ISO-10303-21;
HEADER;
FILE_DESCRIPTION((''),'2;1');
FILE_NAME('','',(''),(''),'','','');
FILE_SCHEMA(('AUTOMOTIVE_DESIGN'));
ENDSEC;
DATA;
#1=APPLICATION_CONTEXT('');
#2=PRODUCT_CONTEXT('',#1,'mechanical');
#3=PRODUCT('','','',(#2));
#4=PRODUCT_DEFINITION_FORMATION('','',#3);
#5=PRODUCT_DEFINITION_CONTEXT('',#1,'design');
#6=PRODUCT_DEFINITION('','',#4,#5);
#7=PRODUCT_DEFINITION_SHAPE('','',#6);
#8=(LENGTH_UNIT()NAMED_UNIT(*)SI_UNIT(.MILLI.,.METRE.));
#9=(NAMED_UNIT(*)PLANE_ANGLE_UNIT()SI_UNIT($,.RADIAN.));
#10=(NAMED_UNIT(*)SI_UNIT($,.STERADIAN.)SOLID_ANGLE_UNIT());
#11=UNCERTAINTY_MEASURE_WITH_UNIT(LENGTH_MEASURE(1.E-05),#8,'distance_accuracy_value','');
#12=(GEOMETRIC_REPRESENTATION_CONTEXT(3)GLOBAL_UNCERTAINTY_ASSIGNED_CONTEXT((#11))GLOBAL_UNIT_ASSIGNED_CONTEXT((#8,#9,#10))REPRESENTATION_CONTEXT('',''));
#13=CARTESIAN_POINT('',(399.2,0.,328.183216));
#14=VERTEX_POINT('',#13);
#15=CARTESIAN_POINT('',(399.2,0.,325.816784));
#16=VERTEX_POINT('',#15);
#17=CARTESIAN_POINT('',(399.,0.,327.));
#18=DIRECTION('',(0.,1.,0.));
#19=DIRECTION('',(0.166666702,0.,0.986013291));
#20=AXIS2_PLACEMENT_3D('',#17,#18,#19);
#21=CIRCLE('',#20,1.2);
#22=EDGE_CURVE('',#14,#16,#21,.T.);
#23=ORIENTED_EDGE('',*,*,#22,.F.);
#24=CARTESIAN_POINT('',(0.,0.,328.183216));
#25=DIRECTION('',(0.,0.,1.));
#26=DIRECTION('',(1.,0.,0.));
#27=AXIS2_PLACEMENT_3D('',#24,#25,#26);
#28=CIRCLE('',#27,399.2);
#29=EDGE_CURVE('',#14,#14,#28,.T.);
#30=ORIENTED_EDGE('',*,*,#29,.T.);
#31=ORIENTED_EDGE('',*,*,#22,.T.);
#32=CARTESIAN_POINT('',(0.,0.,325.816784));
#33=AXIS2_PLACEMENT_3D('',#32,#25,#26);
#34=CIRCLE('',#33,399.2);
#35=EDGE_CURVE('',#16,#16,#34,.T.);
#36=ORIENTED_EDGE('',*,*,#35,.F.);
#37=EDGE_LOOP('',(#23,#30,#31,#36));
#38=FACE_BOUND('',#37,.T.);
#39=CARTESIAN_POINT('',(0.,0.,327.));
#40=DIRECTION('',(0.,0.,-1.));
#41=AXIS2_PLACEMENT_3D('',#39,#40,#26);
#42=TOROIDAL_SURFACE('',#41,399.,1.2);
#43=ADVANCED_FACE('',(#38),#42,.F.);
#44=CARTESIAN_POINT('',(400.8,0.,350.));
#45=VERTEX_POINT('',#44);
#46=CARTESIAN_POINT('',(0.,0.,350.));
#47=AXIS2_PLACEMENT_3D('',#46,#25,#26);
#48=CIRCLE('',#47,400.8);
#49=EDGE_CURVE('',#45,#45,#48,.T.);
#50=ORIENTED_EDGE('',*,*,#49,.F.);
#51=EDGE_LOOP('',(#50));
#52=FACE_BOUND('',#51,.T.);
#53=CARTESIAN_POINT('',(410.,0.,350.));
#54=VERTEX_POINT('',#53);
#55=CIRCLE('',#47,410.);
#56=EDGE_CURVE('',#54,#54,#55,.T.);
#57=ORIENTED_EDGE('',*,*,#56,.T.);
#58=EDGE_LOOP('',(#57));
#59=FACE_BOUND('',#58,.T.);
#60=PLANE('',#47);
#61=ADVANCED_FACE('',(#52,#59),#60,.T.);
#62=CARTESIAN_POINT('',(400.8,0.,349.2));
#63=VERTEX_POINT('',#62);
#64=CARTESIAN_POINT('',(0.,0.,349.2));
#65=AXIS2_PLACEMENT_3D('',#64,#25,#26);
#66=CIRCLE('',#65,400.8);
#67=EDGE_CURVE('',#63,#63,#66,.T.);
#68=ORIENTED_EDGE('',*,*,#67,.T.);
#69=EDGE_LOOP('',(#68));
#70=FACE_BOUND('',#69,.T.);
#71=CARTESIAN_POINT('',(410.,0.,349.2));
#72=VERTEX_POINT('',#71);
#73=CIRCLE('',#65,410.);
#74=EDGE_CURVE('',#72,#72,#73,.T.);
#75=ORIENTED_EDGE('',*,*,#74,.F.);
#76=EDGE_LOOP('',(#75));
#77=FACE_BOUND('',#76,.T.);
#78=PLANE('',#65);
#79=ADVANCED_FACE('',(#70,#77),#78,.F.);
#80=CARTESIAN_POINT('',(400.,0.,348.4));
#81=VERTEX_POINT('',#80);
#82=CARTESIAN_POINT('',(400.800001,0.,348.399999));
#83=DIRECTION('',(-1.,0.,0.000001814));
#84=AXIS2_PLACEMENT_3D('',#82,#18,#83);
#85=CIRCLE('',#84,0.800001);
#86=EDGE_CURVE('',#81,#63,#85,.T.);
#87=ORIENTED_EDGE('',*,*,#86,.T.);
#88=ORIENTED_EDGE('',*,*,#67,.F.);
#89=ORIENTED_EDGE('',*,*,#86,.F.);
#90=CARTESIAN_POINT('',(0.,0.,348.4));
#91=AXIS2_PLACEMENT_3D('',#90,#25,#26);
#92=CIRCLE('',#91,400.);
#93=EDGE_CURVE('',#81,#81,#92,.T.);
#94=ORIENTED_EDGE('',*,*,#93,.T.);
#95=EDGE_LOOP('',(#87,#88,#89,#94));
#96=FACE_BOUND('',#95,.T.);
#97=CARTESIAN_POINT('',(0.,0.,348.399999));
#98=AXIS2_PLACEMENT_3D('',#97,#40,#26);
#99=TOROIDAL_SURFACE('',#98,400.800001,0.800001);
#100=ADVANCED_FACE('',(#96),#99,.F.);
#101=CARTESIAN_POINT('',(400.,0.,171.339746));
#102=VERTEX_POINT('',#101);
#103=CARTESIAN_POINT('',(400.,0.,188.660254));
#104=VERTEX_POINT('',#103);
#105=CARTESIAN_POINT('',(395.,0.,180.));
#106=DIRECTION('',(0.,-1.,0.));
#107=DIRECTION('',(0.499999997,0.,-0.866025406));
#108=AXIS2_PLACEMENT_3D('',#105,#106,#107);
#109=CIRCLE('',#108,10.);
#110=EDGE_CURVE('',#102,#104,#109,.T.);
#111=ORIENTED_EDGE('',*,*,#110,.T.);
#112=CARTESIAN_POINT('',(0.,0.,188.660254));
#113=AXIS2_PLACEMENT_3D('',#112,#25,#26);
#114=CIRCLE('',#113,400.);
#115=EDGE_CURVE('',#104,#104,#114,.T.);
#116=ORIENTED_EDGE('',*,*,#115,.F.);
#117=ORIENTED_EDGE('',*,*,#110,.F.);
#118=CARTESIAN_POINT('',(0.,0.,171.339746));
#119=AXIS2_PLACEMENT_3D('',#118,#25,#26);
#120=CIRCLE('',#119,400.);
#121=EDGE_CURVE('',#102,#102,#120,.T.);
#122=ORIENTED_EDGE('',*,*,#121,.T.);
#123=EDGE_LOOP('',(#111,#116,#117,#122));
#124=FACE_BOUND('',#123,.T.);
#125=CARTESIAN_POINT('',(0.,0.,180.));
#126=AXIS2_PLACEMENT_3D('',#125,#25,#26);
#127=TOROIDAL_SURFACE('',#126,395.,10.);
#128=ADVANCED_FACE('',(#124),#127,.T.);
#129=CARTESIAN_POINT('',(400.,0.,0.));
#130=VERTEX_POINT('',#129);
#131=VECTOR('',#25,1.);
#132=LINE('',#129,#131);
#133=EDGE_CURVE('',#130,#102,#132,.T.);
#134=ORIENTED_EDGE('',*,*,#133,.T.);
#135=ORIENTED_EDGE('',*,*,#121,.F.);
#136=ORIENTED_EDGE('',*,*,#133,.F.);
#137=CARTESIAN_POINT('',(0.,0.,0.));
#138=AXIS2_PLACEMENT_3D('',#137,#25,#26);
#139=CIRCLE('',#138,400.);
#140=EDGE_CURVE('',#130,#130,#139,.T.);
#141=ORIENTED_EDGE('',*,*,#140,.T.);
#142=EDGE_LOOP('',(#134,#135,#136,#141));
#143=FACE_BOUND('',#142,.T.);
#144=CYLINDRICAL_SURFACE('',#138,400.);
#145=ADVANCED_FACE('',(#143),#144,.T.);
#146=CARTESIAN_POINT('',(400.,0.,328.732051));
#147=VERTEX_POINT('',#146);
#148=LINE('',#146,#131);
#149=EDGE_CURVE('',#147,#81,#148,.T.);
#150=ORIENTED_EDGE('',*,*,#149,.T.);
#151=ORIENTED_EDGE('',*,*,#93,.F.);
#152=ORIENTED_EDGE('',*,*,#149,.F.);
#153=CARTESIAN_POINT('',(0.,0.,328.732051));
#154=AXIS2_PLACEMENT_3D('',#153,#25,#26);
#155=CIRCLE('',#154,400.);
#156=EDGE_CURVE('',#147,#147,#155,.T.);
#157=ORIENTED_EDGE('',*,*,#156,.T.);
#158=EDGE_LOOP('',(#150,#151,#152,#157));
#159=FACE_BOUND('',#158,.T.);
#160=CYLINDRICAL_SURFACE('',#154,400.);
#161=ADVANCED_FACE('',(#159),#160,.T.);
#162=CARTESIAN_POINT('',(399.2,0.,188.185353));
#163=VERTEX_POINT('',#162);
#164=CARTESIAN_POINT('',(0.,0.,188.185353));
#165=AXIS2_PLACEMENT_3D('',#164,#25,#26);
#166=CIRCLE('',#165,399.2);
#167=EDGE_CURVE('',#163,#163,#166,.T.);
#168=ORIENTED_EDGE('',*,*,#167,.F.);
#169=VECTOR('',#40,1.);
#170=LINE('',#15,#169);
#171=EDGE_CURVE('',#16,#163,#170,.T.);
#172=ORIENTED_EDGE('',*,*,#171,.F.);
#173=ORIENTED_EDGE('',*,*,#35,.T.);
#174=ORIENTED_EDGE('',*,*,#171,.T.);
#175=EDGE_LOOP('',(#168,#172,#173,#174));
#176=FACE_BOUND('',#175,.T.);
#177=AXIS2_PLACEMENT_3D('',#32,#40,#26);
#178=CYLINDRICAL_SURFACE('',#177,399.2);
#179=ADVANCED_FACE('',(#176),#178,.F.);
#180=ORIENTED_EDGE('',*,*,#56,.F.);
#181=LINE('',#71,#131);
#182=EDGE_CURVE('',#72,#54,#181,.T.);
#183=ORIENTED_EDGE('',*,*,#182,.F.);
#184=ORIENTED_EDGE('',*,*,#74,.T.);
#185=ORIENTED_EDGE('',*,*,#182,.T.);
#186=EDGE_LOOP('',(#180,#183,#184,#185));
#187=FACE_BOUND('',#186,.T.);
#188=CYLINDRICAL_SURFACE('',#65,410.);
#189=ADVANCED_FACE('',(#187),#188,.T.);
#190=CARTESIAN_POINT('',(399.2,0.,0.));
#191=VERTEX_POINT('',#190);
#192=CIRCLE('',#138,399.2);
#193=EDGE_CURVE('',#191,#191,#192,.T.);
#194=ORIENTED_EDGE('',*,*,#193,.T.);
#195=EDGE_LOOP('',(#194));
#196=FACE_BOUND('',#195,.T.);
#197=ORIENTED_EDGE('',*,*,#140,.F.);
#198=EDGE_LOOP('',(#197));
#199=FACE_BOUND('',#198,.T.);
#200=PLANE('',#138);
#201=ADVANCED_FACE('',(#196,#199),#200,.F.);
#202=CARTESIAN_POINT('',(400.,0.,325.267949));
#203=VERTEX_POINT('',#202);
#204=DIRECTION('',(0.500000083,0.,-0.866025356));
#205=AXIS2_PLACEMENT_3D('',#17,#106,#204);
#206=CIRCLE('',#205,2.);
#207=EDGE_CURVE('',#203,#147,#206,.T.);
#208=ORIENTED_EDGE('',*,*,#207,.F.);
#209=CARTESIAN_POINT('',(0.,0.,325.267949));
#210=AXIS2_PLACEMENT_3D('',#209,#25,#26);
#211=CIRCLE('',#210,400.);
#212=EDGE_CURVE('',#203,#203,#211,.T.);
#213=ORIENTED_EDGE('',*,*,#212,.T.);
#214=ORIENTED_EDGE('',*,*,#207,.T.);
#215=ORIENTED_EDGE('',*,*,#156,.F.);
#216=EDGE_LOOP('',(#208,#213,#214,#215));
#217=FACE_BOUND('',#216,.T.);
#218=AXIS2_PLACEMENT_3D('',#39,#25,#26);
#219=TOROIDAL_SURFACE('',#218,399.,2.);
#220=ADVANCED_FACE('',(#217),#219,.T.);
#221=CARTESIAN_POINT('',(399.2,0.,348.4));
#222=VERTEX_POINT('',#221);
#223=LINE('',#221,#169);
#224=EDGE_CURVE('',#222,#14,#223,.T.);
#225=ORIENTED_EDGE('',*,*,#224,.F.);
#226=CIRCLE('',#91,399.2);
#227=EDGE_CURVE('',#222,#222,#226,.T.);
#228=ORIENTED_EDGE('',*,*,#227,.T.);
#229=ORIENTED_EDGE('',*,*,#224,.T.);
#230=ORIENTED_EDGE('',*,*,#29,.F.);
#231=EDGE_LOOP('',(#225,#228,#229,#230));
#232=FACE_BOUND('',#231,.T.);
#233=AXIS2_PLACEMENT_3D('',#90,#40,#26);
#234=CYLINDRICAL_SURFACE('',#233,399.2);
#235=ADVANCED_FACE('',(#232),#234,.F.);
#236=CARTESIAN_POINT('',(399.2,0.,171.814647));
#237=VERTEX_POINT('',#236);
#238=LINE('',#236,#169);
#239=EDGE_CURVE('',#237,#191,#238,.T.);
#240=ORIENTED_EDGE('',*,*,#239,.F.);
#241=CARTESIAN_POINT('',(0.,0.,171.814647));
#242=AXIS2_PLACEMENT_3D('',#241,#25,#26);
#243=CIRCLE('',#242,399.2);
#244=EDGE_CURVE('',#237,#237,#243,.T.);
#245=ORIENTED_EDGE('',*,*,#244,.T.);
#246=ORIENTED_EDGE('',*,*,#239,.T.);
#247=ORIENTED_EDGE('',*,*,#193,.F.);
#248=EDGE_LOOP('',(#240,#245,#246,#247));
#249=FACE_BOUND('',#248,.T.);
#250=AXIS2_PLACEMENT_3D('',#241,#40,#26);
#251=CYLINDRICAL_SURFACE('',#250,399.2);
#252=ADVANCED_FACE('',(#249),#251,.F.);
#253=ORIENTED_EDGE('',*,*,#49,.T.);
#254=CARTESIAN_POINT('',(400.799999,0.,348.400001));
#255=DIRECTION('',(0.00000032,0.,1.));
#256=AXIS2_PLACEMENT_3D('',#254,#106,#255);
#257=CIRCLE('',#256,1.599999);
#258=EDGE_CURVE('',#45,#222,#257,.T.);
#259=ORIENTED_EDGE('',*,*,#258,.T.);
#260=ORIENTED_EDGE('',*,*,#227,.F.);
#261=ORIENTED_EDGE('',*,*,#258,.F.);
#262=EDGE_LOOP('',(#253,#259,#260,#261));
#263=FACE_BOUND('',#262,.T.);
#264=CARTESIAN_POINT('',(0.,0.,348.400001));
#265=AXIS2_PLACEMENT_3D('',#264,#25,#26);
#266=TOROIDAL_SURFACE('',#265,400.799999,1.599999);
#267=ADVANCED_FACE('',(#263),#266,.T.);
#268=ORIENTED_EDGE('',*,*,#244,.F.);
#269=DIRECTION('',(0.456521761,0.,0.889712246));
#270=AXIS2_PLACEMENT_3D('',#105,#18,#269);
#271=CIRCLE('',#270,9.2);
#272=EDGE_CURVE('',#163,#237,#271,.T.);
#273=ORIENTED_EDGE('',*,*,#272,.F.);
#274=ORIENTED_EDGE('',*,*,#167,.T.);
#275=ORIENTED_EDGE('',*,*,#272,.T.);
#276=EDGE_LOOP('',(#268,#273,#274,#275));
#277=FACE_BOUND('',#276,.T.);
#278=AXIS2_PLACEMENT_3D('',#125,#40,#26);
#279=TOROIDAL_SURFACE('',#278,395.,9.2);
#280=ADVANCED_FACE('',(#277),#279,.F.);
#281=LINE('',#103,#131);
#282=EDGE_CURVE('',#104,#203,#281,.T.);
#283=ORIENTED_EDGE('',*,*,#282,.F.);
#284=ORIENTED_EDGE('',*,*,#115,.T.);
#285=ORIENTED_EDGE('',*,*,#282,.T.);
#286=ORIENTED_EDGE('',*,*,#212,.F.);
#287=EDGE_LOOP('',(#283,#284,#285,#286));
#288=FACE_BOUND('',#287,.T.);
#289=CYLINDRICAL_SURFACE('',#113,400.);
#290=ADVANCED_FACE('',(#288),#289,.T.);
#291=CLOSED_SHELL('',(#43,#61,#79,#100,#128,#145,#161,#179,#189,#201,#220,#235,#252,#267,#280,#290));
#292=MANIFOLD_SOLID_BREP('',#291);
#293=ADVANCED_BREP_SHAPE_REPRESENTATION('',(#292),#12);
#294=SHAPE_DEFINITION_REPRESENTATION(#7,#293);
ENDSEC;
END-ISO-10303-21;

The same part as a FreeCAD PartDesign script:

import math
import FreeCAD as App
import Part
import Sketcher

V = App.Vector
Q = App.Units.Quantity

doc = App.newDocument("Part")
body = doc.addObject("PartDesign::Body", "Body")

# Sketch on XZ plane
sketch1 = body.newObject("Sketcher::SketchObject", "Sketch")
sketch1.AttachmentSupport = (doc.getObject("XZ_Plane"), [""])
sketch1.MapMode = "FlatFace"
sketch1.addGeometry([
    Part.LineSegment(V(410, 349.2, 0), V(410, 350, 0)),  # 0
    Part.LineSegment(V(410, 350, 0), V(400.8, 350, 0)),  # 1
    Part.ArcOfCircle(Part.Circle(V(400.799999, 348.400001, 0), V(0, 0, 1), 1.599999), math.radians(89.999982), math.radians(180.000018)),  # 2
    Part.LineSegment(V(399.2, 348.4, 0), V(399.2, 328.183216, 0)),  # 3
    Part.ArcOfCircle(Part.Circle(V(399, 327, 0), V(0, 0, 1), 1.2), math.radians(-80.40593), math.radians(80.40593)),  # 4
    Part.LineSegment(V(399.2, 325.816784, 0), V(399.2, 188.185353, 0)),  # 5
    Part.ArcOfCircle(Part.Circle(V(395, 180, 0), V(0, 0, 1), 9.2), math.radians(-62.83711), math.radians(62.83711)),  # 6
    Part.LineSegment(V(399.2, 171.814647, 0), V(399.2, 0, 0)),  # 7
    Part.LineSegment(V(399.2, 0, 0), V(400, 0, 0)),  # 8
    Part.LineSegment(V(400, 0, 0), V(400, 171.339746, 0)),  # 9
    Part.ArcOfCircle(Part.Circle(V(395, 180, 0), V(0, 0, 1), 10), math.radians(-60), math.radians(60)),  # 10
    Part.LineSegment(V(400, 188.660254, 0), V(400, 325.267949, 0)),  # 11
    Part.ArcOfCircle(Part.Circle(V(399, 327, 0), V(0, 0, 1), 2), math.radians(-59.999994), math.radians(59.999994)),  # 12
    Part.LineSegment(V(400, 328.732051, 0), V(400, 348.4, 0)),  # 13
    Part.ArcOfCircle(Part.Circle(V(400.800001, 348.399999, 0), V(0, 0, 1), 0.800001), math.radians(90.000104), math.radians(179.999896)),  # 14
    Part.LineSegment(V(400.8, 349.2, 0), V(410, 349.2, 0)),  # 15
], False)
sketch1.addConstraint([
    Sketcher.Constraint("Coincident", 0, 2, 1, 1),
    Sketcher.Constraint("Tangent", 1, 2, 2, 1),
    Sketcher.Constraint("Tangent", 2, 2, 3, 1),
    Sketcher.Constraint("Coincident", 3, 2, 4, 2),
    Sketcher.Constraint("Coincident", 4, 1, 5, 1),
    Sketcher.Constraint("Coincident", 5, 2, 6, 2),
    Sketcher.Constraint("Coincident", 6, 1, 7, 1),
    Sketcher.Constraint("Coincident", 7, 2, 8, 1),
    Sketcher.Constraint("Coincident", 8, 2, 9, 1),
    Sketcher.Constraint("Coincident", 9, 2, 10, 1),
    Sketcher.Constraint("Coincident", 10, 2, 11, 1),
    Sketcher.Constraint("Coincident", 11, 2, 12, 1),
    Sketcher.Constraint("Coincident", 12, 2, 13, 1),
    Sketcher.Constraint("Tangent", 13, 2, 14, 2),
    Sketcher.Constraint("Tangent", 14, 1, 15, 1),
    Sketcher.Constraint("Coincident", 15, 2, 0, 1),
    Sketcher.Constraint("Vertical", 0),
    Sketcher.Constraint("Horizontal", 1),
    Sketcher.Constraint("Vertical", 3),
    Sketcher.Constraint("Vertical", 5),
    Sketcher.Constraint("Vertical", 7),
    Sketcher.Constraint("Horizontal", 8),
    Sketcher.Constraint("Vertical", 9),
    Sketcher.Constraint("Vertical", 11),
    Sketcher.Constraint("Vertical", 13),
    Sketcher.Constraint("Horizontal", 15),
    Sketcher.Constraint("Coincident", 10, 3, 6, 3),
    Sketcher.Constraint("Coincident", 12, 3, 4, 3),
    Sketcher.Constraint("Coincident", 14, 3, 2, 3),
    Sketcher.Constraint("PointOnObject", 7, 2, -1),
    Sketcher.Constraint("Vertical", 3, 2, 4, 1),
    Sketcher.Constraint("Vertical", 5, 2, 6, 1),
    Sketcher.Constraint("Vertical", 9, 2, 10, 2),
    Sketcher.Constraint("Vertical", 11, 2, 12, 2),
    Sketcher.Constraint("Radius", 10, Q("10 mm")),
    Sketcher.Constraint("Radius", 12, Q("2 mm")),
    Sketcher.Constraint("Radius", 2, Q("1.599999 mm")),
    Sketcher.Constraint("Radius", 4, Q("1.2 mm")),
    Sketcher.Constraint("Radius", 6, Q("9.2 mm")),
    Sketcher.Constraint("Radius", 14, Q("0.800001 mm")),
    Sketcher.Constraint("DistanceX", 1, 2, 1, 1, Q("9.2 mm")),
    Sketcher.Constraint("DistanceX", -1, 1, 4, 3, Q("399 mm")),
    Sketcher.Constraint("DistanceY", -1, 1, 4, 3, Q("327 mm")),
    Sketcher.Constraint("DistanceX", -1, 1, 6, 3, Q("395 mm")),
    Sketcher.Constraint("DistanceY", -1, 1, 6, 3, Q("180 mm")),
    Sketcher.Constraint("DistanceX", -1, 1, 0, 2, Q("410 mm")),
    Sketcher.Constraint("DistanceY", -1, 1, 0, 2, Q("350 mm")),
])
revolution = body.newObject("PartDesign::Revolution", "Revolution")
revolution.Profile = sketch1
revolution.ReferenceAxis = (sketch1, ["V_Axis"])
revolution.Angle = 360

doc.recompute()
